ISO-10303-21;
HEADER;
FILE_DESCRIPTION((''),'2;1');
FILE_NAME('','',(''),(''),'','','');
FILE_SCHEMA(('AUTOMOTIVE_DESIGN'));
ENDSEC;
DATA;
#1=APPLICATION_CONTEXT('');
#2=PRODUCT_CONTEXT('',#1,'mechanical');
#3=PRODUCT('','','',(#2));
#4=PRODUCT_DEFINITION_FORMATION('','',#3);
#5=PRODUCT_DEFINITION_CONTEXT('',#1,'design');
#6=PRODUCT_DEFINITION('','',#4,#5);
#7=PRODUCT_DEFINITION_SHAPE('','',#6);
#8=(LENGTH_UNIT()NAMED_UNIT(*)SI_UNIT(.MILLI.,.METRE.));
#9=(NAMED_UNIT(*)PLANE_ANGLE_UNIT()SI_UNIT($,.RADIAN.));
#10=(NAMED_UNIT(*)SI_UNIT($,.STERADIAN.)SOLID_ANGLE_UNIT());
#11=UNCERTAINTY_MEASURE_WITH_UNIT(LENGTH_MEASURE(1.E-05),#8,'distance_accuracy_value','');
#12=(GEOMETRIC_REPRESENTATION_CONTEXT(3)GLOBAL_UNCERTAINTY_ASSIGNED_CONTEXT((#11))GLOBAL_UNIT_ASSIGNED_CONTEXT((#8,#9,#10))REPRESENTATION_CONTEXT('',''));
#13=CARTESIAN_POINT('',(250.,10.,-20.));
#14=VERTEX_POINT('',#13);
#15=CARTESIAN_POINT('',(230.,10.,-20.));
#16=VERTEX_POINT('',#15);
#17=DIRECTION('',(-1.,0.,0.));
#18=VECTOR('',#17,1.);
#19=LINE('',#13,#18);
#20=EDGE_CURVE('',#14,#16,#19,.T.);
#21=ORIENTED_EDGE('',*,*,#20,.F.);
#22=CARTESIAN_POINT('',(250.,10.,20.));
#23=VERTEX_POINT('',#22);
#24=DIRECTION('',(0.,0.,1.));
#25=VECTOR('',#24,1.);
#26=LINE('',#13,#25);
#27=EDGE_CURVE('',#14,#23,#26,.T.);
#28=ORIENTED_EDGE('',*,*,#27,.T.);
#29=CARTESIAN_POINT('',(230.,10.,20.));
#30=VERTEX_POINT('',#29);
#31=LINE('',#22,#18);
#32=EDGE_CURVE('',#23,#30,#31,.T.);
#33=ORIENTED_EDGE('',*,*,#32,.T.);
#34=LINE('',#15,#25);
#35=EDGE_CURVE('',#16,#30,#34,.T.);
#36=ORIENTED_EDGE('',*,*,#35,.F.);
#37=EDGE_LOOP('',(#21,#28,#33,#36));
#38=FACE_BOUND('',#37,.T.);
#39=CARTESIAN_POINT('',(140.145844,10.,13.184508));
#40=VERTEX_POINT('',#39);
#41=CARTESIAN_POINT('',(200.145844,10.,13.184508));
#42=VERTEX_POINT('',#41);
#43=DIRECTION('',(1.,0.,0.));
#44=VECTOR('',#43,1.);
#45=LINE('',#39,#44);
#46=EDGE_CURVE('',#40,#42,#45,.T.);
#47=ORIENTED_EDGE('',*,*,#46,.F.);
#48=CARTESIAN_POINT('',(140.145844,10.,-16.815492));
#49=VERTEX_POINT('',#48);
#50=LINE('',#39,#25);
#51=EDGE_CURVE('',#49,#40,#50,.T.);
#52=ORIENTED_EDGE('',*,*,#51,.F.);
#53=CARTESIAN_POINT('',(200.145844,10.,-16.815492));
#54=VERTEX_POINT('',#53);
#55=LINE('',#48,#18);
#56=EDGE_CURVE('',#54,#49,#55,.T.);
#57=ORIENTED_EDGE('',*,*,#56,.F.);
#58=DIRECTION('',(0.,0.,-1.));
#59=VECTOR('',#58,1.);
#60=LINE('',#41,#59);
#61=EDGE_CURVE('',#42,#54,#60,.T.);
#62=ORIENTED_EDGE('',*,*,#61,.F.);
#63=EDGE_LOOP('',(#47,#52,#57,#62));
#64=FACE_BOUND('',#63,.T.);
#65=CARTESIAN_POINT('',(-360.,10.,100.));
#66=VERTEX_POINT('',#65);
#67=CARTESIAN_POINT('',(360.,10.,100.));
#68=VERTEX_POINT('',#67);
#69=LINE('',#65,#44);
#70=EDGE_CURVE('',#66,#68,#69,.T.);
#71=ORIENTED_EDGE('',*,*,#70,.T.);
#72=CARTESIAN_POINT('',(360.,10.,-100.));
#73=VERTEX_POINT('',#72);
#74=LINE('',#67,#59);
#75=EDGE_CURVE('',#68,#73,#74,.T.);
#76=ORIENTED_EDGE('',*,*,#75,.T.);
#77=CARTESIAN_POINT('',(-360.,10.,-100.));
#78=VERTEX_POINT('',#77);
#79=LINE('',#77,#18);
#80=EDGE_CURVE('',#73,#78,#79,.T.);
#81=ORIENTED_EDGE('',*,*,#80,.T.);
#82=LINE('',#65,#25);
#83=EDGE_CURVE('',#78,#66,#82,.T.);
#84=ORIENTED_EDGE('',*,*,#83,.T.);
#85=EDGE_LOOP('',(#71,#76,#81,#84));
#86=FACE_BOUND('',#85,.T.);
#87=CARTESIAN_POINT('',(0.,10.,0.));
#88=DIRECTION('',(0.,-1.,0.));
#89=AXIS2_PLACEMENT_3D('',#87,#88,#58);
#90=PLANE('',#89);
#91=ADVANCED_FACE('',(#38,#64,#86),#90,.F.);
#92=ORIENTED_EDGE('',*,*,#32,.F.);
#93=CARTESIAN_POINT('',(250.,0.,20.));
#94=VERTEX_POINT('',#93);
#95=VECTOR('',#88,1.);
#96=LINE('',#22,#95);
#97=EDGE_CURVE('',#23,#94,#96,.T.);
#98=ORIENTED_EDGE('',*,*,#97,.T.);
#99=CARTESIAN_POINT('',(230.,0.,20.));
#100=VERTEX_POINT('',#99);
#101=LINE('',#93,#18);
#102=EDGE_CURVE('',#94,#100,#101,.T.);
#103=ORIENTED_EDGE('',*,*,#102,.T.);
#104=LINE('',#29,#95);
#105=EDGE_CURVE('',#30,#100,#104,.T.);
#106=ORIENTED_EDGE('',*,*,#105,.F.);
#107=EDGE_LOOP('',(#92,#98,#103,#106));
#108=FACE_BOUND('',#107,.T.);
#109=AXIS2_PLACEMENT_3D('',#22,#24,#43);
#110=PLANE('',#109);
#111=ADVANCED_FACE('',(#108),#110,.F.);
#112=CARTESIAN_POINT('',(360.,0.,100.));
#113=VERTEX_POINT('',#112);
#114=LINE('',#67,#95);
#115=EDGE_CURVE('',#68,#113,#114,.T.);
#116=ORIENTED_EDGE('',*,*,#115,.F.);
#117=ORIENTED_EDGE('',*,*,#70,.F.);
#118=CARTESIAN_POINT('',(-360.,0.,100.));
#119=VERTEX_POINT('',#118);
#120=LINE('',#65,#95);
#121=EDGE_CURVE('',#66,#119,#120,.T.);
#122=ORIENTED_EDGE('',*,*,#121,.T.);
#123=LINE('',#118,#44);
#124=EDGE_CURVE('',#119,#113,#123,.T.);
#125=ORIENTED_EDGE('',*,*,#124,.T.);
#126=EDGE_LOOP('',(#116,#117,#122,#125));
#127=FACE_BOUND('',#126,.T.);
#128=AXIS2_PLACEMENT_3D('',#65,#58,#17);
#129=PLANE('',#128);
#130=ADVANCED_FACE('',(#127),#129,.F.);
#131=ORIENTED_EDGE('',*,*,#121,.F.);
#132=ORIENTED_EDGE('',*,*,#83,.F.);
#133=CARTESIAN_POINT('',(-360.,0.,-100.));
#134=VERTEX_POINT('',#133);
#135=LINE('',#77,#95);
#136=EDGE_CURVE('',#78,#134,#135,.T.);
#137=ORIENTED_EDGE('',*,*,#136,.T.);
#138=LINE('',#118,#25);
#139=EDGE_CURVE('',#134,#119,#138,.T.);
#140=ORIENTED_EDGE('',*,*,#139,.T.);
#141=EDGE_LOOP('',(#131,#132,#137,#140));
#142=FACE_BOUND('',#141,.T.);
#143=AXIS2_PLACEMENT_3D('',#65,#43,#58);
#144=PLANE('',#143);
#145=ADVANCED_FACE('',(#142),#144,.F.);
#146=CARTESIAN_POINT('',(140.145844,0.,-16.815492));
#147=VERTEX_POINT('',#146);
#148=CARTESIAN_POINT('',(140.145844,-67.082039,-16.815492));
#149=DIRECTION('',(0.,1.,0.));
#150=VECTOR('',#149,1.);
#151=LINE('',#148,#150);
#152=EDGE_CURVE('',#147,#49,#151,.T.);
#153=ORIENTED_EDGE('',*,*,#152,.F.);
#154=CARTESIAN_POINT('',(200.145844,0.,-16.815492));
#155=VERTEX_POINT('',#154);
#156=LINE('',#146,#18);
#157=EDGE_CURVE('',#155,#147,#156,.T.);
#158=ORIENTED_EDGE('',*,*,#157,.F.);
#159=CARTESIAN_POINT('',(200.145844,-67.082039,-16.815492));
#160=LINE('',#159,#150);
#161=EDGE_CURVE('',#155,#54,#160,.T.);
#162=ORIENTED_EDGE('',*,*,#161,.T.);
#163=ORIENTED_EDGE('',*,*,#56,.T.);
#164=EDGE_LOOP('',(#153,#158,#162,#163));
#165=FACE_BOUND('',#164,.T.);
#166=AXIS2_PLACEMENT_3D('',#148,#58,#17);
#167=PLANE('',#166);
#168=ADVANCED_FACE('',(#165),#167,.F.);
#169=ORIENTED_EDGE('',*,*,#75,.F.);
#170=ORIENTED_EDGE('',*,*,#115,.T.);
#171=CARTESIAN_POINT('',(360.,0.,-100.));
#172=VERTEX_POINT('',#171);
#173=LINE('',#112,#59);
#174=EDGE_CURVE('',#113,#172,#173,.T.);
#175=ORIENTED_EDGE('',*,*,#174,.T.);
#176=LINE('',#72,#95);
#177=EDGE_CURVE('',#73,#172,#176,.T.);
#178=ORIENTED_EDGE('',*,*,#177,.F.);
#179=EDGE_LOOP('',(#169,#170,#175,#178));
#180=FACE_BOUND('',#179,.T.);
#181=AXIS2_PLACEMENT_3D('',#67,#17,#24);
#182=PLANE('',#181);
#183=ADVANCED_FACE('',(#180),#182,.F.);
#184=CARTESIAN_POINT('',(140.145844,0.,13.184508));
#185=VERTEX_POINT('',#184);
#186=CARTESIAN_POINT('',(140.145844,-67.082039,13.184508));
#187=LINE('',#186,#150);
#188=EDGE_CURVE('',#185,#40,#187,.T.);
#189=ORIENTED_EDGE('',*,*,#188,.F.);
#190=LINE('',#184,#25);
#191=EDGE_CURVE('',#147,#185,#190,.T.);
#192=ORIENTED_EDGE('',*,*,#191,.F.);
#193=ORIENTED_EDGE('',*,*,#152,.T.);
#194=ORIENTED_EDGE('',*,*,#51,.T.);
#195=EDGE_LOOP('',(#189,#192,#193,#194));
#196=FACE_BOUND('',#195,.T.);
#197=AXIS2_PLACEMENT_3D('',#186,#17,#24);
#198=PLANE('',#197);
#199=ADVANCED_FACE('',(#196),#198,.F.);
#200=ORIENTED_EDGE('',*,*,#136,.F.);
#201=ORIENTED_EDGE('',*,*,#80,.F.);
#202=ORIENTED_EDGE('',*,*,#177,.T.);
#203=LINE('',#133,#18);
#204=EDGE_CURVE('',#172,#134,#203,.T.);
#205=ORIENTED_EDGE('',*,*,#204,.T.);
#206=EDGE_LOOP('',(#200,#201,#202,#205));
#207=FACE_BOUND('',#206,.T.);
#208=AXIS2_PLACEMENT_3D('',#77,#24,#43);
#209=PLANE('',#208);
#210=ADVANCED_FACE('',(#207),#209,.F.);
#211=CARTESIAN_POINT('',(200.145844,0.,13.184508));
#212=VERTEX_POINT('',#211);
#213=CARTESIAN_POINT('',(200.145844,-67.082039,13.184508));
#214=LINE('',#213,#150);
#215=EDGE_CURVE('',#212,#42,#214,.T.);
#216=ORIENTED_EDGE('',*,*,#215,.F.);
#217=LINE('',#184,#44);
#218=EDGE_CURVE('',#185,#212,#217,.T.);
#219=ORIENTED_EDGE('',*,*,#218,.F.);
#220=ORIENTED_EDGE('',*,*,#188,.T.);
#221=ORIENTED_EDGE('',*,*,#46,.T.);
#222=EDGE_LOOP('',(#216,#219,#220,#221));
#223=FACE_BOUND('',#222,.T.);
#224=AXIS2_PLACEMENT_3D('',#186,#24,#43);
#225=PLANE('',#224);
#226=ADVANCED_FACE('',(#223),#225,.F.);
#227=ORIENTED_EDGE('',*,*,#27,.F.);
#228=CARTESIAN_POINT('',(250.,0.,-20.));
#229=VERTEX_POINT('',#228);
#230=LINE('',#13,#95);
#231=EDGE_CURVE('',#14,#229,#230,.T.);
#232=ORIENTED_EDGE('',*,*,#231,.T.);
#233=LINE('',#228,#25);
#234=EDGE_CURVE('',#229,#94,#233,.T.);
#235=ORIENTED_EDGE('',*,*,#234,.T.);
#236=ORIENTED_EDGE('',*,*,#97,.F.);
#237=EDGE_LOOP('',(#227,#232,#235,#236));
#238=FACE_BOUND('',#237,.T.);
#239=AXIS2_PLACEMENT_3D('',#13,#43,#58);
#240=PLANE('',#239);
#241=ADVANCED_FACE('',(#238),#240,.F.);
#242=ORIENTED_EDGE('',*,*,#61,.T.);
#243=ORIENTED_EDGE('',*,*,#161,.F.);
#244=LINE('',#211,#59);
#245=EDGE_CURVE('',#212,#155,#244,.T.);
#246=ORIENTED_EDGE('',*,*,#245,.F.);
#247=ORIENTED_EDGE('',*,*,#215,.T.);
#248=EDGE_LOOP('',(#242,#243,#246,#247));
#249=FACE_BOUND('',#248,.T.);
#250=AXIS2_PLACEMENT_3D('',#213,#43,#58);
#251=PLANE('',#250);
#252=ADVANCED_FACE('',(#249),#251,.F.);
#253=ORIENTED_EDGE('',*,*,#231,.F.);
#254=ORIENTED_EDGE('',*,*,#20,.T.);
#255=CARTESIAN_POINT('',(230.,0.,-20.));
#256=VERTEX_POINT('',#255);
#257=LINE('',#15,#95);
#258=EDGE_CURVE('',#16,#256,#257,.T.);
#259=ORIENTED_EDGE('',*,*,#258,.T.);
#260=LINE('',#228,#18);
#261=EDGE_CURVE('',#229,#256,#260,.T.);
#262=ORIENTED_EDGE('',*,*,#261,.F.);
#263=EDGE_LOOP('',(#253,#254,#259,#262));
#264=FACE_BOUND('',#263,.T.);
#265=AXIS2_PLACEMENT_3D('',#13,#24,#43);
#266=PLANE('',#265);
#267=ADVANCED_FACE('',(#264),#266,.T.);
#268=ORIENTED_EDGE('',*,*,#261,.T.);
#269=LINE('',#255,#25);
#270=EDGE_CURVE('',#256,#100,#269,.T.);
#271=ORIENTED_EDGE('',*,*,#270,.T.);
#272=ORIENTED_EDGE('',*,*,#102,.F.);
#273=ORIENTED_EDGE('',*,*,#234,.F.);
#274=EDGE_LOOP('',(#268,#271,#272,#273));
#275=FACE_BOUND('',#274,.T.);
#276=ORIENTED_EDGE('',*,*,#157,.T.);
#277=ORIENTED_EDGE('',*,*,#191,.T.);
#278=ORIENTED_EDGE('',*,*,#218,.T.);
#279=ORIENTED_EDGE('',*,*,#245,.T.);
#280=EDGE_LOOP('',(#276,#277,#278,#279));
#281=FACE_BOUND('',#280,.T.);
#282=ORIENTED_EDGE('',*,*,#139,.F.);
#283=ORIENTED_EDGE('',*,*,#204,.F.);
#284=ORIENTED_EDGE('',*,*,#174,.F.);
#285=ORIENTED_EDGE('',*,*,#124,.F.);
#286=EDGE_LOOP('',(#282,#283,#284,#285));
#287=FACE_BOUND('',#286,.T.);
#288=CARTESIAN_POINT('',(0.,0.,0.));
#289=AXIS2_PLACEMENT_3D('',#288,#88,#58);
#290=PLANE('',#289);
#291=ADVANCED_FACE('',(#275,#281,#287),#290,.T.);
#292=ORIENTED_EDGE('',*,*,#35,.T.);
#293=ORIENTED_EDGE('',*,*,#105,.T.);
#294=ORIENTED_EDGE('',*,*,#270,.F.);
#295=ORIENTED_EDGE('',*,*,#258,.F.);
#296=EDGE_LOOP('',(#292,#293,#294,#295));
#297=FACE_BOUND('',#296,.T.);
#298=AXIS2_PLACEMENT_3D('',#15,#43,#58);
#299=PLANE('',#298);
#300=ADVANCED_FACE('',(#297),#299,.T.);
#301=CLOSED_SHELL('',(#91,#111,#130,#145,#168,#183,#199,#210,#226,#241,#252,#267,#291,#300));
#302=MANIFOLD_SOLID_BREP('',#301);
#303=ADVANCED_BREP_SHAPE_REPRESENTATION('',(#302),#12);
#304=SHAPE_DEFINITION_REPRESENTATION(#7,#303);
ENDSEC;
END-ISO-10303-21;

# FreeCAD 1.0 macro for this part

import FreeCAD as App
import Part
import Sketcher
Q = App.Units.Quantity

doc = App.newDocument("Part")
params = doc.addObject("Spreadsheet::Sheet", "Params")
for row, (alias, value) in enumerate([
    ("sketch1_width", "720 mm"),
    ("sketch1_height", "200 mm"),
    ("pad1_length", "10 mm"),
    ("sketch2_width", "20 mm"),
    ("sketch2_height", "40 mm"),
    ("pocket1_length", "10 mm"),
    ("sketch3_width", "60 mm"),
    ("sketch3_height", "30 mm"),
    ("pocket2_length", "10 mm"),
], start=1):
    params.set(f"A{row}", alias)
    params.set(f"B{row}", "=" + value)
    params.setAlias(f"B{row}", alias)

body = doc.addObject("PartDesign::Body", "Body")

# Sketch on XZ plane
sketch1 = body.newObject("Sketcher::SketchObject", "Sketch")
sketch1.AttachmentSupport = (doc.getObject("XZ_Plane"), [""])
sketch1.MapMode = "FlatFace"
sketch1.addGeometry(Part.LineSegment(App.Vector(-360, -100, 0), App.Vector(-360, 100, 0)), False)
sketch1.addGeometry(Part.LineSegment(App.Vector(-360, 100, 0), App.Vector(360, 100, 0)), False)
sketch1.addGeometry(Part.LineSegment(App.Vector(360, 100, 0), App.Vector(360, -100, 0)), False)
sketch1.addGeometry(Part.LineSegment(App.Vector(360, -100, 0), App.Vector(-360, -100, 0)), False)
sketch1.addConstraint(Sketcher.Constraint("Coincident", 0, 2, 1, 1))
sketch1.addConstraint(Sketcher.Constraint("Coincident", 1, 2, 2, 1))
sketch1.addConstraint(Sketcher.Constraint("Coincident", 2, 2, 3, 1))
sketch1.addConstraint(Sketcher.Constraint("Coincident", 3, 2, 0, 1))
sketch1.addConstraint(Sketcher.Constraint("Vertical", 0))
sketch1.addConstraint(Sketcher.Constraint("Horizontal", 1))
sketch1.addConstraint(Sketcher.Constraint("Vertical", 2))
sketch1.addConstraint(Sketcher.Constraint("Horizontal", 3))
sketch1.addConstraint(Sketcher.Constraint("Symmetric", 0, 2, 2, 2, -1, 1))
sketch1.addConstraint(Sketcher.Constraint("DistanceX", 1, 1, 1, 2, Q("720 mm")))
sketch1.addConstraint(Sketcher.Constraint("DistanceY", 0, 1, 0, 2, Q("200 mm")))
sketch1.setExpression("Constraints[9]", "Params.sketch1_width")
sketch1.setExpression("Constraints[10]", "Params.sketch1_height")
pad1 = body.newObject("PartDesign::Pad", "Pad")
pad1.Profile = sketch1
pad1.setExpression("Length", "Params.pad1_length")
pad1.Reversed = True

# Sketch on XZ plane
sketch2 = body.newObject("Sketcher::SketchObject", "Sketch001")
sketch2.AttachmentSupport = (doc.getObject("XZ_Plane"), [""])
sketch2.MapMode = "FlatFace"
sketch2.addGeometry(Part.LineSegment(App.Vector(250, -20, 0), App.Vector(250, 20, 0)), False)
sketch2.addGeometry(Part.LineSegment(App.Vector(250, 20, 0), App.Vector(230, 20, 0)), False)
sketch2.addGeometry(Part.LineSegment(App.Vector(230, 20, 0), App.Vector(230, -20, 0)), False)
sketch2.addGeometry(Part.LineSegment(App.Vector(230, -20, 0), App.Vector(250, -20, 0)), False)
sketch2.addConstraint(Sketcher.Constraint("Coincident", 0, 2, 1, 1))
sketch2.addConstraint(Sketcher.Constraint("Coincident", 1, 2, 2, 1))
sketch2.addConstraint(Sketcher.Constraint("Coincident", 2, 2, 3, 1))
sketch2.addConstraint(Sketcher.Constraint("Coincident", 3, 2, 0, 1))
sketch2.addConstraint(Sketcher.Constraint("Vertical", 0))
sketch2.addConstraint(Sketcher.Constraint("Horizontal", 1))
sketch2.addConstraint(Sketcher.Constraint("Vertical", 2))
sketch2.addConstraint(Sketcher.Constraint("Horizontal", 3))
sketch2.addConstraint(Sketcher.Constraint("DistanceX", 1, 2, 1, 1, Q("20 mm")))
sketch2.addConstraint(Sketcher.Constraint("DistanceY", 0, 1, 0, 2, Q("40 mm")))
sketch2.addConstraint(Sketcher.Constraint("DistanceX", -1, 1, 0, 2, Q("250 mm")))
sketch2.addConstraint(Sketcher.Constraint("DistanceY", -1, 1, 0, 2, Q("20 mm")))
sketch2.setExpression("Constraints[8]", "Params.sketch2_width")
sketch2.setExpression("Constraints[9]", "Params.sketch2_height")
pocket1 = body.newObject("PartDesign::Pocket", "Pocket")
pocket1.Profile = sketch2
pocket1.setExpression("Length", "Params.pocket1_length")

# Sketch on XZ plane
sketch3 = body.newObject("Sketcher::SketchObject", "Sketch002")
sketch3.AttachmentSupport = (doc.getObject("XZ_Plane"), [""])
sketch3.MapMode = "FlatFace"
sketch3.AttachmentOffset = App.Placement(App.Vector(0, 0, -10), App.Rotation())
sketch3.addGeometry(Part.LineSegment(App.Vector(140, -17, 0), App.Vector(140, 13, 0)), False)
sketch3.addGeometry(Part.LineSegment(App.Vector(140, 13, 0), App.Vector(200, 13, 0)), False)
sketch3.addGeometry(Part.LineSegment(App.Vector(200, 13, 0), App.Vector(200, -17, 0)), False)
sketch3.addGeometry(Part.LineSegment(App.Vector(200, -17, 0), App.Vector(140, -17, 0)), False)
sketch3.addConstraint(Sketcher.Constraint("Coincident", 0, 2, 1, 1))
sketch3.addConstraint(Sketcher.Constraint("Coincident", 1, 2, 2, 1))
sketch3.addConstraint(Sketcher.Constraint("Coincident", 2, 2, 3, 1))
sketch3.addConstraint(Sketcher.Constraint("Coincident", 3, 2, 0, 1))
sketch3.addConstraint(Sketcher.Constraint("Vertical", 0))
sketch3.addConstraint(Sketcher.Constraint("Horizontal", 1))
sketch3.addConstraint(Sketcher.Constraint("Vertical", 2))
sketch3.addConstraint(Sketcher.Constraint("Horizontal", 3))
sketch3.addConstraint(Sketcher.Constraint("DistanceX", 1, 1, 1, 2, Q("60 mm")))
sketch3.addConstraint(Sketcher.Constraint("DistanceY", 0, 1, 0, 2, Q("30 mm")))
sketch3.addConstraint(Sketcher.Constraint("DistanceX", -1, 1, 0, 2, Q("140.145844 mm")))
sketch3.addConstraint(Sketcher.Constraint("DistanceY", -1, 1, 0, 2, Q("13.184508 mm")))
sketch3.setExpression("Constraints[8]", "Params.sketch3_width")
sketch3.setExpression("Constraints[9]", "Params.sketch3_height")
pocket2 = body.newObject("PartDesign::Pocket", "Pocket001")
pocket2.Profile = sketch3
pocket2.setExpression("Length", "Params.pocket2_length")
pocket2.Reversed = True

doc.recompute()
